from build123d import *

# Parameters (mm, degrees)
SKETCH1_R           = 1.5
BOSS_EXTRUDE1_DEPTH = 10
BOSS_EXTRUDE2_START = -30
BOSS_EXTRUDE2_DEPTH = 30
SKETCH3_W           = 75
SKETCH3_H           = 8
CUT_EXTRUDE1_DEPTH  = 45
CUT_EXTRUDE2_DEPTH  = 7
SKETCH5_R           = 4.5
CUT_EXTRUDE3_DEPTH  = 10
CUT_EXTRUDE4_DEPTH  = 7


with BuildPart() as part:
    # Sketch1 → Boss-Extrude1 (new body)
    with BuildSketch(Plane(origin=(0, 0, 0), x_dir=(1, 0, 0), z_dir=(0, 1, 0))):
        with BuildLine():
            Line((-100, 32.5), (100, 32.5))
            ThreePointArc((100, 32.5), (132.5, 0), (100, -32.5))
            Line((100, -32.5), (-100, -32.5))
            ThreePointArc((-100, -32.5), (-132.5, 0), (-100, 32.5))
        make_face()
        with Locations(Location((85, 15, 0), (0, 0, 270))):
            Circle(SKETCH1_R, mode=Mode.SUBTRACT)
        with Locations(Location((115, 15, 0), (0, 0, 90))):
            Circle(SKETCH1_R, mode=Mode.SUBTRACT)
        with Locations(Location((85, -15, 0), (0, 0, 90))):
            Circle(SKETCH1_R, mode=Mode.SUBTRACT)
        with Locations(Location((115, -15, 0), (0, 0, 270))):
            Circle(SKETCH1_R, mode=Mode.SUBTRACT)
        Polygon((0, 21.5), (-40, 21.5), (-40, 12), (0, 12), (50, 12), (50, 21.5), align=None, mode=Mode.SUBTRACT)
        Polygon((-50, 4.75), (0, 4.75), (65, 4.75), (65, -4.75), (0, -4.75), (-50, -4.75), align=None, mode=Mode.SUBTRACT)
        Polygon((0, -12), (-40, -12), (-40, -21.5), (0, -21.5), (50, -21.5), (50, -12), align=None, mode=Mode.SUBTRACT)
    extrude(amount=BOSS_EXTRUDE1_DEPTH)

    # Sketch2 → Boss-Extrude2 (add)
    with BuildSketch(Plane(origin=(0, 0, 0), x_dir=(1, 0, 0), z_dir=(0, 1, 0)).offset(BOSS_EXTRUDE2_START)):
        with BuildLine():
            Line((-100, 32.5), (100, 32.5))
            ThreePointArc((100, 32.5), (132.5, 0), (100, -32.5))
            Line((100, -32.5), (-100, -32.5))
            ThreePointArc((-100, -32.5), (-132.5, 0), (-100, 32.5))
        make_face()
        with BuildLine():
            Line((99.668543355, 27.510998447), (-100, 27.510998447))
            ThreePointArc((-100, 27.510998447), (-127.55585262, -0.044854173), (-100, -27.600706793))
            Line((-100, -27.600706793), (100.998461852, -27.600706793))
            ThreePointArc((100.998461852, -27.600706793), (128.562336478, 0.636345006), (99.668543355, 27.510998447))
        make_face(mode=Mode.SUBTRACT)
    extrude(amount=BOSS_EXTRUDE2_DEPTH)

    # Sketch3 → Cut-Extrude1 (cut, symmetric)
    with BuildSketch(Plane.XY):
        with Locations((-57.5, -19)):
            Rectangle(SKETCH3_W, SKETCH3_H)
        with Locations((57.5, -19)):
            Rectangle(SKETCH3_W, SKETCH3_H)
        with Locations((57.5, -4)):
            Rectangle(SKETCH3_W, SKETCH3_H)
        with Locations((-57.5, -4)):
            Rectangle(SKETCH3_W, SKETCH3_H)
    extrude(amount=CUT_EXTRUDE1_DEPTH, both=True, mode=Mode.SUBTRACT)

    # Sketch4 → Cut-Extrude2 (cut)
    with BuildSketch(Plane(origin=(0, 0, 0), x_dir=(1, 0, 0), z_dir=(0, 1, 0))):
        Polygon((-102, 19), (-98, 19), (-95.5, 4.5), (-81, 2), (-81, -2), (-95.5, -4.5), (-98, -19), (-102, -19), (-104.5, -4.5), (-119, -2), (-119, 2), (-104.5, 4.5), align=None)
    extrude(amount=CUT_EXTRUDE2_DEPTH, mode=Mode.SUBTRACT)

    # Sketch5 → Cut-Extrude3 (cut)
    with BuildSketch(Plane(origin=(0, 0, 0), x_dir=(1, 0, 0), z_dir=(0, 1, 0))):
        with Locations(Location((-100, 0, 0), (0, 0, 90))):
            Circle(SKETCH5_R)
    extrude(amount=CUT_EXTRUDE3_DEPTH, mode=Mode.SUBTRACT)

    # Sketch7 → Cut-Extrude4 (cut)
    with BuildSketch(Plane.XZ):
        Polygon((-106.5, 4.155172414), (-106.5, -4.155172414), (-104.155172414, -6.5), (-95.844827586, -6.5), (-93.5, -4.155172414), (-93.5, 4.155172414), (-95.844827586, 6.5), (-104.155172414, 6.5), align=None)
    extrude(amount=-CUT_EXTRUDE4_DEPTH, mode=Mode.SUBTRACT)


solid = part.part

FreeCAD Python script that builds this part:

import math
import FreeCAD as App
import Part
import Sketcher

V = App.Vector
Q = App.Units.Quantity

doc = App.newDocument("Part")
body = doc.addObject("PartDesign::Body", "Body")

sketch1 = body.newObject("Sketcher::SketchObject", "Sketch")
sketch1.AttachmentSupport = (doc.getObject("XZ_Plane"), [""])
sketch1.MapMode = "FlatFace"
sketch1.addGeometry(Part.LineSegment(V(100, -32.5, 0), V(-100, -32.5, 0)), False)
sketch1.addGeometry(Part.ArcOfCircle(Part.Circle(V(-100, 0, 0), V(0, 0, 1), 32.5), math.radians(90), math.radians(270)), False)
sketch1.addGeometry(Part.LineSegment(V(-100, 32.5, 0), V(100, 32.5, 0)), False)
sketch1.addGeometry(Part.ArcOfCircle(Part.Circle(V(100, 0, 0), V(0, 0, 1), 32.5), math.radians(-90), math.radians(90)), False)
sketch1.addGeometry(Part.Circle(V(115, 15, 0), V(0, 0, 1), 1.5), False)
sketch1.addGeometry(Part.Circle(V(85, 15, 0), V(0, 0, 1), 1.5), False)
sketch1.addGeometry(Part.LineSegment(V(50, 12, 0), V(50, 21.5, 0)), False)
sketch1.addGeometry(Part.LineSegment(V(50, 21.5, 0), V(-40, 21.5, 0)), False)
sketch1.addGeometry(Part.LineSegment(V(-40, 21.5, 0), V(-40, 12, 0)), False)
sketch1.addGeometry(Part.LineSegment(V(-40, 12, 0), V(50, 12, 0)), False)
sketch1.addGeometry(Part.Circle(V(115, -15, 0), V(0, 0, 1), 1.5), False)
sketch1.addGeometry(Part.Circle(V(85, -15, 0), V(0, 0, 1), 1.5), False)
sketch1.addGeometry(Part.LineSegment(V(-50, -4.8, 0), V(65, -4.8, 0)), False)
sketch1.addGeometry(Part.LineSegment(V(65, -4.8, 0), V(65, 4.8, 0)), False)
sketch1.addGeometry(Part.LineSegment(V(65, 4.8, 0), V(-50, 4.8, 0)), False)
sketch1.addGeometry(Part.LineSegment(V(-50, 4.8, 0), V(-50, -4.8, 0)), False)
sketch1.addGeometry(Part.LineSegment(V(50, -21.5, 0), V(50, -12, 0)), False)
sketch1.addGeometry(Part.LineSegment(V(50, -12, 0), V(-40, -12, 0)), False)
sketch1.addGeometry(Part.LineSegment(V(-40, -12, 0), V(-40, -21.5, 0)), False)
sketch1.addGeometry(Part.LineSegment(V(-40, -21.5, 0), V(50, -21.5, 0)), False)
sketch1.addConstraint(Sketcher.Constraint("Tangent", 0, 2, 1, 2))
sketch1.addConstraint(Sketcher.Constraint("Tangent", 1, 1, 2, 1))
sketch1.addConstraint(Sketcher.Constraint("Tangent", 2, 2, 3, 2))
sketch1.addConstraint(Sketcher.Constraint("Tangent", 3, 1, 0, 1))
sketch1.addConstraint(Sketcher.Constraint("Coincident", 6, 2, 7, 1))
sketch1.addConstraint(Sketcher.Constraint("Coincident", 7, 2, 8, 1))
sketch1.addConstraint(Sketcher.Constraint("Coincident", 8, 2, 9, 1))
sketch1.addConstraint(Sketcher.Constraint("Coincident", 9, 2, 6, 1))
sketch1.addConstraint(Sketcher.Constraint("Coincident", 12, 2, 13, 1))
sketch1.addConstraint(Sketcher.Constraint("Coincident", 13, 2, 14, 1))
sketch1.addConstraint(Sketcher.Constraint("Coincident", 14, 2, 15, 1))
sketch1.addConstraint(Sketcher.Constraint("Coincident", 15, 2, 12, 1))
sketch1.addConstraint(Sketcher.Constraint("Coincident", 16, 2, 17, 1))
sketch1.addConstraint(Sketcher.Constraint("Coincident", 17, 2, 18, 1))
sketch1.addConstraint(Sketcher.Constraint("Coincident", 18, 2, 19, 1))
sketch1.addConstraint(Sketcher.Constraint("Coincident", 19, 2, 16, 1))
sketch1.addConstraint(Sketcher.Constraint("Horizontal", 0))
sketch1.addConstraint(Sketcher.Constraint("Horizontal", 2))
sketch1.addConstraint(Sketcher.Constraint("Vertical", 6))
sketch1.addConstraint(Sketcher.Constraint("Horizontal", 7))
sketch1.addConstraint(Sketcher.Constraint("Vertical", 8))
sketch1.addConstraint(Sketcher.Constraint("Horizontal", 9))
sketch1.addConstraint(Sketcher.Constraint("Horizontal", 12))
sketch1.addConstraint(Sketcher.Constraint("Vertical", 13))
sketch1.addConstraint(Sketcher.Constraint("Horizontal", 14))
sketch1.addConstraint(Sketcher.Constraint("Vertical", 15))
sketch1.addConstraint(Sketcher.Constraint("Vertical", 16))
sketch1.addConstraint(Sketcher.Constraint("Horizontal", 17))
sketch1.addConstraint(Sketcher.Constraint("Vertical", 18))
sketch1.addConstraint(Sketcher.Constraint("Horizontal", 19))
sketch1.addConstraint(Sketcher.Constraint("Equal", 4, 5))
sketch1.addConstraint(Sketcher.Constraint("Equal", 5, 10))
sketch1.addConstraint(Sketcher.Constraint("Equal", 10, 11))
sketch1.addConstraint(Sketcher.Constraint("Symmetric", 1, 3, 3, 3, -1, 1))
sketch1.addConstraint(Sketcher.Constraint("Symmetric", 4, 3, 10, 3, -1))
sketch1.addConstraint(Sketcher.Constraint("Symmetric", 5, 3, 11, 3, -1))
sketch1.addConstraint(Sketcher.Constraint("Symmetric", 9, 2, 16, 2, -1))
sketch1.addConstraint(Sketcher.Constraint("Symmetric", 7, 2, 18, 2, -1))
sketch1.addConstraint(Sketcher.Constraint("Horizontal", 4, 3, 5, 3))
sketch1.addConstraint(Sketcher.Constraint("Equal", 8, 13))
sketch1.addConstraint(Sketcher.Constraint("Diameter", 4, Q("3 mm")))
sketch1.addConstraint(Sketcher.Constraint("Radius", 1, Q("32.5 mm")))
sketch1.addConstraint(Sketcher.Constraint("DistanceX", 0, 2, 0, 1, Q("200 mm")))
sketch1.addConstraint(Sketcher.Constraint("DistanceX", 7, 2, 7, 1, Q("90 mm")))
sketch1.addConstraint(Sketcher.Constraint("DistanceX", 12, 1, 12, 2, Q("115 mm")))
sketch1.addConstraint(Sketcher.Constraint("DistanceY", 6, 1, 6, 2, Q("9.5 mm")))
sketch1.addConstraint(Sketcher.Constraint("DistanceX", -1, 1, 4, 3, Q("115 mm")))
sketch1.addConstraint(Sketcher.Constraint("DistanceY", -1, 1, 4, 3, Q("15 mm")))
sketch1.addConstraint(Sketcher.Constraint("DistanceX", -1, 1, 5, 3, Q("85 mm")))
sketch1.addConstraint(Sketcher.Constraint("DistanceX", -1, 1, 6, 2, Q("50 mm")))
sketch1.addConstraint(Sketcher.Constraint("DistanceY", -1, 1, 8, 2, Q("12 mm")))
sketch1.addConstraint(Sketcher.Constraint("DistanceX", -1, 1, 12, 2, Q("65 mm")))
sketch1.addConstraint(Sketcher.Constraint("DistanceY", 12, 2, -1, 1, Q("4.75 mm")))
pad1 = body.newObject("PartDesign::Pad", "Pad")
pad1.Profile = sketch1
pad1.Length = 10
pad1.Reversed = True

sketch2 = body.newObject("Sketcher::SketchObject", "Sketch001")
sketch2.AttachmentSupport = (doc.getObject("XZ_Plane"), [""])
sketch2.MapMode = "FlatFace"
sketch2.AttachmentOffset = App.Placement(V(0, 0, 30), App.Rotation())
sketch2.addGeometry(Part.LineSegment(V(100, -32, 0), V(-100, -32, 0)), False)
sketch2.addGeometry(Part.ArcOfCircle(Part.Circle(V(-100, 0, 0), V(0, 0, 1), 32), math.radians(90), math.radians(270)), False)
sketch2.addGeometry(Part.LineSegment(V(-100, 32, 0), V(100, 32, 0)), False)
sketch2.addGeometry(Part.ArcOfCircle(Part.Circle(V(100, 0, 0), V(0, 0, 1), 32), math.radians(-90), math.radians(90)), False)
sketch2.addGeometry(Part.ArcOfCircle(Part.Circle(V(101, 0, 0), V(0, 0, 1), 28), math.radians(-93), math.radians(90)), False)
sketch2.addGeometry(Part.LineSegment(V(101, 28, 0), V(-100, 28, 0)), False)
sketch2.addGeometry(Part.ArcOfCircle(Part.Circle(V(-100, 0, 0), V(0, 0, 1), 28), math.radians(90), math.radians(270)), False)
sketch2.addGeometry(Part.LineSegment(V(-100, -28, 0), V(100, -28, 0)), False)
sketch2.addConstraint(Sketcher.Constraint("Tangent", 0, 2, 1, 2))
sketch2.addConstraint(Sketcher.Constraint("Tangent", 1, 1, 2, 1))
sketch2.addConstraint(Sketcher.Constraint("Tangent", 2, 2, 3, 2))
sketch2.addConstraint(Sketcher.Constraint("Tangent", 3, 1, 0, 1))
sketch2.addConstraint(Sketcher.Constraint("Tangent", 4, 2, 5, 1))
sketch2.addConstraint(Sketcher.Constraint("Tangent", 5, 2, 6, 1))
sketch2.addConstraint(Sketcher.Constraint("Tangent", 6, 2, 7, 1))
sketch2.addConstraint(Sketcher.Constraint("Coincident", 7, 2, 4, 1))
sketch2.addConstraint(Sketcher.Constraint("Horizontal", 0))
sketch2.addConstraint(Sketcher.Constraint("Horizontal", 2))
sketch2.addConstraint(Sketcher.Constraint("Horizontal", 5))
sketch2.addConstraint(Sketcher.Constraint("Horizontal", 7))
sketch2.addConstraint(Sketcher.Constraint("Symmetric", 1, 3, 3, 3, -1, 1))
sketch2.addConstraint(Sketcher.Constraint("Vertical", 1, 3, 6, 3))
sketch2.addConstraint(Sketcher.Constraint("Radius", 1, Q("32.5 mm")))
sketch2.addConstraint(Sketcher.Constraint("DistanceX", 0, 2, 0, 1, Q("200 mm")))
sketch2.addConstraint(Sketcher.Constraint("Radius", 4, Q("27.571899 mm")))
sketch2.addConstraint(Sketcher.Constraint("DistanceY", 6, 2, -1, 1, Q("27.510998 mm")))
sketch2.addConstraint(Sketcher.Constraint("Radius", 6, Q("27.555853 mm")))
sketch2.addConstraint(Sketcher.Constraint("DistanceX", 5, 2, 5, 1, Q("200.998462 mm")))
pad2 = body.newObject("PartDesign::Pad", "Pad001")
pad2.Profile = sketch2
pad2.Length = 30
pad2.Reversed = True

sketch3 = body.newObject("Sketcher::SketchObject", "Sketch002")
sketch3.AttachmentSupport = (doc.getObject("XY_Plane"), [""])
sketch3.MapMode = "FlatFace"
sketch3.addGeometry(Part.LineSegment(V(-95, -15, 0), V(-95, -23, 0)), False)
sketch3.addGeometry(Part.LineSegment(V(-95, -23, 0), V(-20, -23, 0)), False)
sketch3.addGeometry(Part.LineSegment(V(-20, -23, 0), V(-20, -15, 0)), False)
sketch3.addGeometry(Part.LineSegment(V(-20, -15, 0), V(-95, -15, 0)), False)
sketch3.addGeometry(Part.LineSegment(V(20, -15, 0), V(20, -23, 0)), False)
sketch3.addGeometry(Part.LineSegment(V(20, -23, 0), V(95, -23, 0)), False)
sketch3.addGeometry(Part.LineSegment(V(95, -23, 0), V(95, -15, 0)), False)
sketch3.addGeometry(Part.LineSegment(V(95, -15, 0), V(20, -15, 0)), False)
sketch3.addGeometry(Part.LineSegment(V(20, 0, 0), V(20, -8, 0)), False)
sketch3.addGeometry(Part.LineSegment(V(20, -8, 0), V(95, -8, 0)), False)
sketch3.addGeometry(Part.LineSegment(V(95, -8, 0), V(95, 0, 0)), False)
sketch3.addGeometry(Part.LineSegment(V(95, 0, 0), V(20, 0, 0)), False)
sketch3.addGeometry(Part.LineSegment(V(-95, 0, 0), V(-95, -8, 0)), False)
sketch3.addGeometry(Part.LineSegment(V(-95, -8, 0), V(-20, -8, 0)), False)
sketch3.addGeometry(Part.LineSegment(V(-20, -8, 0), V(-20, 0, 0)), False)
sketch3.addGeometry(Part.LineSegment(V(-20, 0, 0), V(-95, 0, 0)), False)
sketch3.addConstraint(Sketcher.Constraint("Coincident", 0, 2, 1, 1))
sketch3.addConstraint(Sketcher.Constraint("Coincident", 1, 2, 2, 1))
sketch3.addConstraint(Sketcher.Constraint("Coincident", 2, 2, 3, 1))
sketch3.addConstraint(Sketcher.Constraint("Coincident", 3, 2, 0, 1))
sketch3.addConstraint(Sketcher.Constraint("Coincident", 4, 2, 5, 1))
sketch3.addConstraint(Sketcher.Constraint("Coincident", 5, 2, 6, 1))
sketch3.addConstraint(Sketcher.Constraint("Coincident", 6, 2, 7, 1))
sketch3.addConstraint(Sketcher.Constraint("Coincident", 7, 2, 4, 1))
sketch3.addConstraint(Sketcher.Constraint("Coincident", 8, 2, 9, 1))
sketch3.addConstraint(Sketcher.Constraint("Coincident", 9, 2, 10, 1))
sketch3.addConstraint(Sketcher.Constraint("Coincident", 10, 2, 11, 1))
sketch3.addConstraint(Sketcher.Constraint("Coincident", 11, 2, 8, 1))
sketch3.addConstraint(Sketcher.Constraint("Coincident", 12, 2, 13, 1))
sketch3.addConstraint(Sketcher.Constraint("Coincident", 13, 2, 14, 1))
sketch3.addConstraint(Sketcher.Constraint("Coincident", 14, 2, 15, 1))
sketch3.addConstraint(Sketcher.Constraint("Coincident", 15, 2, 12, 1))
sketch3.addConstraint(Sketcher.Constraint("Vertical", 0))
sketch3.addConstraint(Sketcher.Constraint("Horizontal", 1))
sketch3.addConstraint(Sketcher.Constraint("Vertical", 2))
sketch3.addConstraint(Sketcher.Constraint("Horizontal", 3))
sketch3.addConstraint(Sketcher.Constraint("Vertical", 4))
sketch3.addConstraint(Sketcher.Constraint("Horizontal", 5))
sketch3.addConstraint(Sketcher.Constraint("Vertical", 6))
sketch3.addConstraint(Sketcher.Constraint("Horizontal", 7))
sketch3.addConstraint(Sketcher.Constraint("Vertical", 8))
sketch3.addConstraint(Sketcher.Constraint("Horizontal", 9))
sketch3.addConstraint(Sketcher.Constraint("Vertical", 10))
sketch3.addConstraint(Sketcher.Constraint("Horizontal", 11))
sketch3.addConstraint(Sketcher.Constraint("Vertical", 12))
sketch3.addConstraint(Sketcher.Constraint("Horizontal", 13))
sketch3.addConstraint(Sketcher.Constraint("Vertical", 14))
sketch3.addConstraint(Sketcher.Constraint("Horizontal", 15))
sketch3.addConstraint(Sketcher.Constraint("Symmetric", 11, 2, 14, 2, -1, 1))
sketch3.addConstraint(Sketcher.Constraint("Symmetric", 1, 2, 4, 2, -2))
sketch3.addConstraint(Sketcher.Constraint("Symmetric", 3, 2, 6, 2, -2))
sketch3.addConstraint(Sketcher.Constraint("Symmetric", 9, 2, 12, 2, -2))
sketch3.addConstraint(Sketcher.Constraint("PointOnObject", 10, 2, -1))
sketch3.addConstraint(Sketcher.Constraint("Vertical", 7, 2, 8, 2))
sketch3.addConstraint(Sketcher.Constraint("Vertical", 6, 2, 9, 2))
sketch3.addConstraint(Sketcher.Constraint("Equal", 6, 8))
sketch3.addConstraint(Sketcher.Constraint("DistanceX", 1, 1, 1, 2, Q("75 mm")))
sketch3.addConstraint(Sketcher.Constraint("DistanceY", 0, 2, 0, 1, Q("8 mm")))
sketch3.addConstraint(Sketcher.Constraint("DistanceX", 0, 2, -1, 1, Q("95 mm")))
sketch3.addConstraint(Sketcher.Constraint("DistanceY", 0, 2, -1, 1, Q("23 mm")))
pocket1 = body.newObject("PartDesign::Pocket", "Pocket")
pocket1.Profile = sketch3
pocket1.Length = 90
pocket1.Midplane = True

sketch4 = body.newObject("Sketcher::SketchObject", "Sketch003")
sketch4.AttachmentSupport = (doc.getObject("XZ_Plane"), [""])
sketch4.MapMode = "FlatFace"
sketch4.addGeometry(Part.LineSegment(V(-98, -19, 0), V(-102, -19, 0)), False)
sketch4.addGeometry(Part.LineSegment(V(-102, -19, 0), V(-104.5, -4.5, 0)), False)
sketch4.addGeometry(Part.LineSegment(V(-104.5, -4.5, 0), V(-119, -2, 0)), False)
sketch4.addGeometry(Part.LineSegment(V(-119, -2, 0), V(-119, 2, 0)), False)
sketch4.addGeometry(Part.LineSegment(V(-119, 2, 0), V(-104.5, 4.5, 0)), False)
sketch4.addGeometry(Part.LineSegment(V(-104.5, 4.5, 0), V(-102, 19, 0)), False)
sketch4.addGeometry(Part.LineSegment(V(-102, 19, 0), V(-98, 19, 0)), False)
sketch4.addGeometry(Part.LineSegment(V(-98, 19, 0), V(-95.5, 4.5, 0)), False)
sketch4.addGeometry(Part.LineSegment(V(-95.5, 4.5, 0), V(-81, 2, 0)), False)
sketch4.addGeometry(Part.LineSegment(V(-81, 2, 0), V(-81, -2, 0)), False)
sketch4.addGeometry(Part.LineSegment(V(-81, -2, 0), V(-95.5, -4.5, 0)), False)
sketch4.addGeometry(Part.LineSegment(V(-95.5, -4.5, 0), V(-98, -19, 0)), False)
sketch4.addConstraint(Sketcher.Constraint("Coincident", 0, 2, 1, 1))
sketch4.addConstraint(Sketcher.Constraint("Coincident", 1, 2, 2, 1))
sketch4.addConstraint(Sketcher.Constraint("Coincident", 2, 2, 3, 1))
sketch4.addConstraint(Sketcher.Constraint("Coincident", 3, 2, 4, 1))
sketch4.addConstraint(Sketcher.Constraint("Coincident", 4, 2, 5, 1))
sketch4.addConstraint(Sketcher.Constraint("Coincident", 5, 2, 6, 1))
sketch4.addConstraint(Sketcher.Constraint("Coincident", 6, 2, 7, 1))
sketch4.addConstraint(Sketcher.Constraint("Coincident", 7, 2, 8, 1))
sketch4.addConstraint(Sketcher.Constraint("Coincident", 8, 2, 9, 1))
sketch4.addConstraint(Sketcher.Constraint("Coincident", 9, 2, 10, 1))
sketch4.addConstraint(Sketcher.Constraint("Coincident", 10, 2, 11, 1))
sketch4.addConstraint(Sketcher.Constraint("Coincident", 11, 2, 0, 1))
sketch4.addConstraint(Sketcher.Constraint("Horizontal", 0))
sketch4.addConstraint(Sketcher.Constraint("Vertical", 3))
sketch4.addConstraint(Sketcher.Constraint("Horizontal", 6))
sketch4.addConstraint(Sketcher.Constraint("Vertical", 9))
sketch4.addConstraint(Sketcher.Constraint("Symmetric", 1, 2, 4, 2, -1))
sketch4.addConstraint(Sketcher.Constraint("Symmetric", 0, 2, 5, 2, -1))
sketch4.addConstraint(Sketcher.Constraint("Symmetric", 7, 2, 10, 2, -1))
sketch4.addConstraint(Sketcher.Constraint("Perpendicular", 1, 4))
sketch4.addConstraint(Sketcher.Constraint("Perpendicular", 2, 5))
sketch4.addConstraint(Sketcher.Constraint("Perpendicular", 4, 7))
sketch4.addConstraint(Sketcher.Constraint("Perpendicular", 5, 8))
sketch4.addConstraint(Sketcher.Constraint("Perpendicular", 7, 10))
sketch4.addConstraint(Sketcher.Constraint("Perpendicular", 8, 11))
sketch4.addConstraint(Sketcher.Constraint("Horizontal", 4, 2, 7, 2))
sketch4.addConstraint(Sketcher.Constraint("Horizontal", 3, 2, 8, 2))
sketch4.addConstraint(Sketcher.Constraint("Equal", 6, 3))
sketch4.addConstraint(Sketcher.Constraint("Equal", 1, 2))
sketch4.addConstraint(Sketcher.Constraint("DistanceX", 0, 2, 0, 1, Q("4 mm")))
sketch4.addConstraint(Sketcher.Constraint("DistanceX", 0, 2, -1, 1, Q("102 mm")))
sketch4.addConstraint(Sketcher.Constraint("DistanceY", 0, 2, -1, 1, Q("19 mm")))
sketch4.addConstraint(Sketcher.Constraint("DistanceY", 1, 2, 4, 2, Q("9 mm")))
pocket2 = body.newObject("PartDesign::Pocket", "Pocket001")
pocket2.Profile = sketch4
pocket2.Length = 7

sketch5 = body.newObject("Sketcher::SketchObject", "Sketch004")
sketch5.AttachmentSupport = (doc.getObject("XZ_Plane"), [""])
sketch5.MapMode = "FlatFace"
sketch5.addGeometry(Part.Circle(V(-100, 0, 0), V(0, 0, 1), 4.5), False)
sketch5.addConstraint(Sketcher.Constraint("PointOnObject", 0, 3, -1))
sketch5.addConstraint(Sketcher.Constraint("Diameter", 0, Q("9 mm")))
sketch5.addConstraint(Sketcher.Constraint("DistanceX", 0, 3, -1, 1, Q("100 mm")))
pocket3 = body.newObject("PartDesign::Pocket", "Pocket002")
pocket3.Profile = sketch5
pocket3.Length = 10

sketch6 = body.newObject("Sketcher::SketchObject", "Sketch005")
sketch6.AttachmentSupport = (doc.getObject("XZ_Plane"), [""])
sketch6.MapMode = "FlatFace"
sketch6.addGeometry(Part.LineSegment(V(-106.5, 4.2, 0), V(-106.5, -4.2, 0)), False)
sketch6.addGeometry(Part.LineSegment(V(-106.5, -4.2, 0), V(-104.2, -6.5, 0)), False)
sketch6.addGeometry(Part.LineSegment(V(-104.2, -6.5, 0), V(-95.8, -6.5, 0)), False)
sketch6.addGeometry(Part.LineSegment(V(-95.8, -6.5, 0), V(-93.5, -4.2, 0)), False)
sketch6.addGeometry(Part.LineSegment(V(-93.5, -4.2, 0), V(-93.5, 4.2, 0)), False)
sketch6.addGeometry(Part.LineSegment(V(-93.5, 4.2, 0), V(-95.8, 6.5, 0)), False)
sketch6.addGeometry(Part.LineSegment(V(-95.8, 6.5, 0), V(-104.2, 6.5, 0)), False)
sketch6.addGeometry(Part.LineSegment(V(-104.2, 6.5, 0), V(-106.5, 4.2, 0)), False)
sketch6.addConstraint(Sketcher.Constraint("Coincident", 0, 2, 1, 1))
sketch6.addConstraint(Sketcher.Constraint("Coincident", 1, 2, 2, 1))
sketch6.addConstraint(Sketcher.Constraint("Coincident", 2, 2, 3, 1))
sketch6.addConstraint(Sketcher.Constraint("Coincident", 3, 2, 4, 1))
sketch6.addConstraint(Sketcher.Constraint("Coincident", 4, 2, 5, 1))
sketch6.addConstraint(Sketcher.Constraint("Coincident", 5, 2, 6, 1))
sketch6.addConstraint(Sketcher.Constraint("Coincident", 6, 2, 7, 1))
sketch6.addConstraint(Sketcher.Constraint("Coincident", 7, 2, 0, 1))
sketch6.addConstraint(Sketcher.Constraint("Vertical", 0))
sketch6.addConstraint(Sketcher.Constraint("Horizontal", 2))
sketch6.addConstraint(Sketcher.Constraint("Vertical", 4))
sketch6.addConstraint(Sketcher.Constraint("Horizontal", 6))
sketch6.addConstraint(Sketcher.Constraint("Symmetric", 2, 2, 5, 2, -1))
sketch6.addConstraint(Sketcher.Constraint("Perpendicular", 1, 3))
sketch6.addConstraint(Sketcher.Constraint("Perpendicular", 3, 5))
sketch6.addConstraint(Sketcher.Constraint("Perpendicular", 5, 7))
sketch6.addConstraint(Sketcher.Constraint("Horizontal", 0, 2, 3, 2))
sketch6.addConstraint(Sketcher.Constraint("Horizontal", 4, 2, 7, 2))
sketch6.addConstraint(Sketcher.Constraint("Vertical", 1, 2, 6, 2))
sketch6.addConstraint(Sketcher.Constraint("Equal", 6, 0))
sketch6.addConstraint(Sketcher.Constraint("DistanceX", 0, 2, 3, 2, Q("13 mm")))
sketch6.addConstraint(Sketcher.Constraint("DistanceX", 0, 2, -1, 1, Q("106.5 mm")))
sketch6.addConstraint(Sketcher.Constraint("DistanceX", 2, 1, 2, 2, Q("8.310345 mm")))
pocket4 = body.newObject("PartDesign::Pocket", "Pocket003")
pocket4.Profile = sketch6
pocket4.Length = 7

doc.recompute()
